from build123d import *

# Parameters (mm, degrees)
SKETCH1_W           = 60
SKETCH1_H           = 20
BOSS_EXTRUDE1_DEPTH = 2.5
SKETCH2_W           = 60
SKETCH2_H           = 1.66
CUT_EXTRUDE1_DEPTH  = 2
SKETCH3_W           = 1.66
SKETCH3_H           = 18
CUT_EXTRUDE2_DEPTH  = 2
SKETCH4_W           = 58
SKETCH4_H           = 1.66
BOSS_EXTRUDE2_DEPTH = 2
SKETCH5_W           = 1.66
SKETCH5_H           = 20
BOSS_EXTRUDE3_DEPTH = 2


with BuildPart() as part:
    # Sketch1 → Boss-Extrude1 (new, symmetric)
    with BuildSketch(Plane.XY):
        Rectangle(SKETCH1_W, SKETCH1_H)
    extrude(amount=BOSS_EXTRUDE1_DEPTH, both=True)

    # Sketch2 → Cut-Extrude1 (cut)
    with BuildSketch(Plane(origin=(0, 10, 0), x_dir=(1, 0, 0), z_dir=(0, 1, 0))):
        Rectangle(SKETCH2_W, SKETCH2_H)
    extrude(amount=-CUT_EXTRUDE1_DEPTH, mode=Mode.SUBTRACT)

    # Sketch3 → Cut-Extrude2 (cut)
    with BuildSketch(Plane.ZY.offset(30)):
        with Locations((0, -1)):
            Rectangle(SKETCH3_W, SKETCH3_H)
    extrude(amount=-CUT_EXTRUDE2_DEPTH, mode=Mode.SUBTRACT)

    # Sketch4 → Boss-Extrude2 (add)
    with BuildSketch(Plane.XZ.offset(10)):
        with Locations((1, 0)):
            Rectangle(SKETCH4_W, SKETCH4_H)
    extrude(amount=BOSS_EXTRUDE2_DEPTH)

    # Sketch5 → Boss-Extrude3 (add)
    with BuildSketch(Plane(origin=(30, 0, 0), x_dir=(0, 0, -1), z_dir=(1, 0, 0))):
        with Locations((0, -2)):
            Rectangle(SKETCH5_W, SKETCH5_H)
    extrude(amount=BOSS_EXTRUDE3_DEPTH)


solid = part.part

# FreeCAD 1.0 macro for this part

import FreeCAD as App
import Part
import Sketcher
from FreeCAD import Vector

doc = App.newDocument("Part")
body = doc.addObject("PartDesign::Body", "Body")

# Sketch on XY plane
sketch1 = body.newObject("Sketcher::SketchObject", "Sketch")
sketch1.AttachmentSupport = (doc.getObject("XY_Plane"), [""])
sketch1.MapMode = "FlatFace"
sketch1.addGeometry([
    Part.LineSegment(Vector(-30, 10, 0), Vector(-30, -10, 0)),
    Part.LineSegment(Vector(-30, -10, 0), Vector(30, -10, 0)),
    Part.LineSegment(Vector(30, -10, 0), Vector(30, 10, 0)),
    Part.LineSegment(Vector(30, 10, 0), Vector(-30, 10, 0)),
], False)
sketch1.addConstraint([
    Sketcher.Constraint("Coincident", 0, 2, 1, 1),
    Sketcher.Constraint("Coincident", 1, 2, 2, 1),
    Sketcher.Constraint("Coincident", 2, 2, 3, 1),
    Sketcher.Constraint("Coincident", 3, 2, 0, 1),
    Sketcher.Constraint("Vertical", 0),
    Sketcher.Constraint("Horizontal", 1),
    Sketcher.Constraint("Vertical", 2),
    Sketcher.Constraint("Horizontal", 3),
    Sketcher.Constraint("Symmetric", 0, 2, 2, 2, -1, 1),
    Sketcher.Constraint("DistanceX", 1, 1, 1, 2, 60.0),
    Sketcher.Constraint("DistanceY", 0, 2, 0, 1, 20.0),
])
pad1 = body.newObject("PartDesign::Pad", "Pad")
pad1.Profile = sketch1
pad1.Length = 5
pad1.Midplane = True

# Sketch on XZ plane
sketch2 = body.newObject("Sketcher::SketchObject", "Sketch001")
sketch2.AttachmentSupport = (doc.getObject("XZ_Plane"), [""])
sketch2.MapMode = "FlatFace"
sketch2.AttachmentOffset = App.Placement(Vector(0, 0, -10), App.Rotation())
sketch2.addGeometry([
    Part.LineSegment(Vector(-30, -0.83, 0), Vector(-30, 0.83, 0)),
    Part.LineSegment(Vector(-30, 0.83, 0), Vector(30, 0.83, 0)),
    Part.LineSegment(Vector(30, 0.83, 0), Vector(30, -0.83, 0)),
    Part.LineSegment(Vector(30, -0.83, 0), Vector(-30, -0.83, 0)),
], False)
sketch2.addConstraint([
    Sketcher.Constraint("Coincident", 0, 2, 1, 1),
    Sketcher.Constraint("Coincident", 1, 2, 2, 1),
    Sketcher.Constraint("Coincident", 2, 2, 3, 1),
    Sketcher.Constraint("Coincident", 3, 2, 0, 1),
    Sketcher.Constraint("Vertical", 0),
    Sketcher.Constraint("Horizontal", 1),
    Sketcher.Constraint("Vertical", 2),
    Sketcher.Constraint("Horizontal", 3),
    Sketcher.Constraint("Symmetric", 0, 2, 2, 2, -1, 1),
    Sketcher.Constraint("DistanceX", 1, 1, 1, 2, 60.0),
    Sketcher.Constraint("DistanceY", 0, 1, 0, 2, 1.66),
])
pocket1 = body.newObject("PartDesign::Pocket", "Pocket")
pocket1.Profile = sketch2
pocket1.Length = 2
pocket1.Reversed = True

# Sketch on YZ plane
sketch3 = body.newObject("Sketcher::SketchObject", "Sketch002")
sketch3.AttachmentSupport = (doc.getObject("YZ_Plane"), [""])
sketch3.MapMode = "FlatFace"
sketch3.AttachmentOffset = App.Placement(Vector(0, 0, -30), App.Rotation())
sketch3.addGeometry([
    Part.LineSegment(Vector(8, -0.83, 0), Vector(-10, -0.83, 0)),
    Part.LineSegment(Vector(-10, -0.83, 0), Vector(-10, 0.83, 0)),
    Part.LineSegment(Vector(-10, 0.83, 0), Vector(8, 0.83, 0)),
    Part.LineSegment(Vector(8, 0.83, 0), Vector(8, -0.83, 0)),
], False)
sketch3.addConstraint([
    Sketcher.Constraint("Coincident", 0, 2, 1, 1),
    Sketcher.Constraint("Coincident", 1, 2, 2, 1),
    Sketcher.Constraint("Coincident", 2, 2, 3, 1),
    Sketcher.Constraint("Coincident", 3, 2, 0, 1),
    Sketcher.Constraint("Horizontal", 0),
    Sketcher.Constraint("Vertical", 1),
    Sketcher.Constraint("Horizontal", 2),
    Sketcher.Constraint("Vertical", 3),
    Sketcher.Constraint("DistanceX", 0, 2, 0, 1, 18.0),
    Sketcher.Constraint("DistanceX", 0, 2, -1, 1, 10.0),
    Sketcher.Constraint("DistanceY", 1, 1, 1, 2, 1.66),
    Sketcher.Constraint("DistanceY", 0, 2, -1, 1, 0.83),
])
pocket2 = body.newObject("PartDesign::Pocket", "Pocket001")
pocket2.Profile = sketch3
pocket2.Length = 2
pocket2.Reversed = True

# Sketch on XZ plane
sketch4 = body.newObject("Sketcher::SketchObject", "Sketch003")
sketch4.AttachmentSupport = (doc.getObject("XZ_Plane"), [""])
sketch4.MapMode = "FlatFace"
sketch4.AttachmentOffset = App.Placement(Vector(0, 0, 10), App.Rotation())
sketch4.addGeometry([
    Part.LineSegment(Vector(-28, 0.83, 0), Vector(-28, -0.83, 0)),
    Part.LineSegment(Vector(-28, -0.83, 0), Vector(30, -0.83, 0)),
    Part.LineSegment(Vector(30, -0.83, 0), Vector(30, 0.83, 0)),
    Part.LineSegment(Vector(30, 0.83, 0), Vector(-28, 0.83, 0)),
], False)
sketch4.addConstraint([
    Sketcher.Constraint("Coincident", 0, 2, 1, 1),
    Sketcher.Constraint("Coincident", 1, 2, 2, 1),
    Sketcher.Constraint("Coincident", 2, 2, 3, 1),
    Sketcher.Constraint("Coincident", 3, 2, 0, 1),
    Sketcher.Constraint("Vertical", 0),
    Sketcher.Constraint("Horizontal", 1),
    Sketcher.Constraint("Vertical", 2),
    Sketcher.Constraint("Horizontal", 3),
    Sketcher.Constraint("DistanceX", 1, 1, 1, 2, 58.0),
    Sketcher.Constraint("DistanceX", 0, 2, -1, 1, 28.0),
    Sketcher.Constraint("DistanceY", 0, 2, 0, 1, 1.66),
    Sketcher.Constraint("DistanceY", 0, 2, -1, 1, 0.83),
])
pad2 = body.newObject("PartDesign::Pad", "Pad001")
pad2.Profile = sketch4
pad2.Length = 2

# Sketch on YZ plane
sketch5 = body.newObject("Sketcher::SketchObject", "Sketch004")
sketch5.AttachmentSupport = (doc.getObject("YZ_Plane"), [""])
sketch5.MapMode = "FlatFace"
sketch5.AttachmentOffset = App.Placement(Vector(0, 0, 30), App.Rotation())
sketch5.addGeometry([
    Part.LineSegment(Vector(8, 0.83, 0), Vector(-12, 0.83, 0)),
    Part.LineSegment(Vector(-12, 0.83, 0), Vector(-12, -0.83, 0)),
    Part.LineSegment(Vector(-12, -0.83, 0), Vector(8, -0.83, 0)),
    Part.LineSegment(Vector(8, -0.83, 0), Vector(8, 0.83, 0)),
], False)
sketch5.addConstraint([
    Sketcher.Constraint("Coincident", 0, 2, 1, 1),
    Sketcher.Constraint("Coincident", 1, 2, 2, 1),
    Sketcher.Constraint("Coincident", 2, 2, 3, 1),
    Sketcher.Constraint("Coincident", 3, 2, 0, 1),
    Sketcher.Constraint("Horizontal", 0),
    Sketcher.Constraint("Vertical", 1),
    Sketcher.Constraint("Horizontal", 2),
    Sketcher.Constraint("Vertical", 3),
    Sketcher.Constraint("DistanceX", 0, 2, 0, 1, 20.0),
    Sketcher.Constraint("DistanceX", 0, 2, -1, 1, 12.0),
    Sketcher.Constraint("DistanceY", 1, 2, 1, 1, 1.66),
    Sketcher.Constraint("DistanceY", -1, 1, 0, 2, 0.83),
])
pad3 = body.newObject("PartDesign::Pad", "Pad002")
pad3.Profile = sketch5
pad3.Length = 2

doc.recompute()
